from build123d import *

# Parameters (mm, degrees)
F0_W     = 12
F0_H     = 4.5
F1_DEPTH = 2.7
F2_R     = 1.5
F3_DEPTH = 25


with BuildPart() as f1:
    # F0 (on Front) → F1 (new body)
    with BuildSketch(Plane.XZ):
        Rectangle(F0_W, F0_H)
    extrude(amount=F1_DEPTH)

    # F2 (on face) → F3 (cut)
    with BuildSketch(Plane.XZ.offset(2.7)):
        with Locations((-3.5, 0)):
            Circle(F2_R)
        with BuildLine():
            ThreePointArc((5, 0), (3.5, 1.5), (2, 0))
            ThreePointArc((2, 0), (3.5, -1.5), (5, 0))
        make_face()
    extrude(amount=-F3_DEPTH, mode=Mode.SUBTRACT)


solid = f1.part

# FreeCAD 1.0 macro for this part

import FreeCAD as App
import Part
import Sketcher
from FreeCAD import Vector


def add_polygon(sketch, points):
    """Adds a closed chain of lines whose ends are joined by coincident constraints."""
    first, n = sketch.GeometryCount, len(points)
    for a, b in zip(points, points[1:] + points[:1]):
        sketch.addGeometry(Part.LineSegment(App.Vector(*a, 0), App.Vector(*b, 0)), False)
    for i in range(n):
        sketch.addConstraint(Sketcher.Constraint("Coincident", first + i, 2, first + (i + 1) % n, 1))

doc = App.newDocument("Part")
params = doc.addObject("Spreadsheet::Sheet", "Params")
for row, (alias, value) in enumerate([
    ("sketch1_width", "12 mm"),
    ("sketch1_height", "4.5 mm"),
    ("pad1_length", "2.7 mm"),
    ("sketch2_diameter", "3 mm"),
    ("pocket1_length", "25 mm"),
], start=1):
    params.set(f"A{row}", alias)
    params.set(f"B{row}", "=" + value)
    params.setAlias(f"B{row}", alias)

body = doc.addObject("PartDesign::Body", "Body")

# Sketch on XZ plane
sketch1 = body.newObject("Sketcher::SketchObject", "Sketch")
sketch1.AttachmentSupport = (doc.getObject("XZ_Plane"), [""])
sketch1.MapMode = "FlatFace"
add_polygon(sketch1, [(-6, 2.2), (-6, -2.2), (6, -2.2), (6, 2.2)])  # lines 0-3
sketch1.addConstraint(Sketcher.Constraint("Vertical", 0))
sketch1.addConstraint(Sketcher.Constraint("Horizontal", 1))
sketch1.addConstraint(Sketcher.Constraint("Vertical", 2))
sketch1.addConstraint(Sketcher.Constraint("Horizontal", 3))
sketch1.addConstraint(Sketcher.Constraint("Symmetric", 0, 2, 2, 2, -1, 1))
sketch1.addConstraint(Sketcher.Constraint("DistanceX", 1, 1, 1, 2, 12.0))
sketch1.addConstraint(Sketcher.Constraint("DistanceY", 0, 2, 0, 1, 4.5))
sketch1.setExpression("Constraints[9]", "Params.sketch1_width")
sketch1.setExpression("Constraints[10]", "Params.sketch1_height")
pad1 = body.newObject("PartDesign::Pad", "Pad")
pad1.Profile = sketch1
pad1.setExpression("Length", "Params.pad1_length")

# Sketch on XZ plane
sketch2 = body.newObject("Sketcher::SketchObject", "Sketch001")
sketch2.AttachmentSupport = (doc.getObject("XZ_Plane"), [""])
sketch2.MapMode = "FlatFace"
sketch2.AttachmentOffset = App.Placement(Vector(0, 0, 2.7), App.Rotation())
sketch2.addGeometry(Part.Circle(Vector(-3.5, 0, 0), Vector(0, 0, 1), 1.5), False)
sketch2.addGeometry(Part.Circle(Vector(3.5, 0, 0), Vector(0, 0, 1), 1.5), False)
sketch2.addConstraint(Sketcher.Constraint("Equal", 0, 1))
sketch2.addConstraint(Sketcher.Constraint("Symmetric", 0, 3, 1, 3, -1, 1))
sketch2.addConstraint(Sketcher.Constraint("PointOnObject", 0, 3, -1))
sketch2.addConstraint(Sketcher.Constraint("Diameter", 0, 3.0))
sketch2.addConstraint(Sketcher.Constraint("DistanceX", 0, 3, 1, 3, 7.0))
sketch2.setExpression("Constraints[3]", "Params.sketch2_diameter")
pocket1 = body.newObject("PartDesign::Pocket", "Pocket")
pocket1.Profile = sketch2
pocket1.setExpression("Length", "Params.pocket1_length")

doc.recompute()
